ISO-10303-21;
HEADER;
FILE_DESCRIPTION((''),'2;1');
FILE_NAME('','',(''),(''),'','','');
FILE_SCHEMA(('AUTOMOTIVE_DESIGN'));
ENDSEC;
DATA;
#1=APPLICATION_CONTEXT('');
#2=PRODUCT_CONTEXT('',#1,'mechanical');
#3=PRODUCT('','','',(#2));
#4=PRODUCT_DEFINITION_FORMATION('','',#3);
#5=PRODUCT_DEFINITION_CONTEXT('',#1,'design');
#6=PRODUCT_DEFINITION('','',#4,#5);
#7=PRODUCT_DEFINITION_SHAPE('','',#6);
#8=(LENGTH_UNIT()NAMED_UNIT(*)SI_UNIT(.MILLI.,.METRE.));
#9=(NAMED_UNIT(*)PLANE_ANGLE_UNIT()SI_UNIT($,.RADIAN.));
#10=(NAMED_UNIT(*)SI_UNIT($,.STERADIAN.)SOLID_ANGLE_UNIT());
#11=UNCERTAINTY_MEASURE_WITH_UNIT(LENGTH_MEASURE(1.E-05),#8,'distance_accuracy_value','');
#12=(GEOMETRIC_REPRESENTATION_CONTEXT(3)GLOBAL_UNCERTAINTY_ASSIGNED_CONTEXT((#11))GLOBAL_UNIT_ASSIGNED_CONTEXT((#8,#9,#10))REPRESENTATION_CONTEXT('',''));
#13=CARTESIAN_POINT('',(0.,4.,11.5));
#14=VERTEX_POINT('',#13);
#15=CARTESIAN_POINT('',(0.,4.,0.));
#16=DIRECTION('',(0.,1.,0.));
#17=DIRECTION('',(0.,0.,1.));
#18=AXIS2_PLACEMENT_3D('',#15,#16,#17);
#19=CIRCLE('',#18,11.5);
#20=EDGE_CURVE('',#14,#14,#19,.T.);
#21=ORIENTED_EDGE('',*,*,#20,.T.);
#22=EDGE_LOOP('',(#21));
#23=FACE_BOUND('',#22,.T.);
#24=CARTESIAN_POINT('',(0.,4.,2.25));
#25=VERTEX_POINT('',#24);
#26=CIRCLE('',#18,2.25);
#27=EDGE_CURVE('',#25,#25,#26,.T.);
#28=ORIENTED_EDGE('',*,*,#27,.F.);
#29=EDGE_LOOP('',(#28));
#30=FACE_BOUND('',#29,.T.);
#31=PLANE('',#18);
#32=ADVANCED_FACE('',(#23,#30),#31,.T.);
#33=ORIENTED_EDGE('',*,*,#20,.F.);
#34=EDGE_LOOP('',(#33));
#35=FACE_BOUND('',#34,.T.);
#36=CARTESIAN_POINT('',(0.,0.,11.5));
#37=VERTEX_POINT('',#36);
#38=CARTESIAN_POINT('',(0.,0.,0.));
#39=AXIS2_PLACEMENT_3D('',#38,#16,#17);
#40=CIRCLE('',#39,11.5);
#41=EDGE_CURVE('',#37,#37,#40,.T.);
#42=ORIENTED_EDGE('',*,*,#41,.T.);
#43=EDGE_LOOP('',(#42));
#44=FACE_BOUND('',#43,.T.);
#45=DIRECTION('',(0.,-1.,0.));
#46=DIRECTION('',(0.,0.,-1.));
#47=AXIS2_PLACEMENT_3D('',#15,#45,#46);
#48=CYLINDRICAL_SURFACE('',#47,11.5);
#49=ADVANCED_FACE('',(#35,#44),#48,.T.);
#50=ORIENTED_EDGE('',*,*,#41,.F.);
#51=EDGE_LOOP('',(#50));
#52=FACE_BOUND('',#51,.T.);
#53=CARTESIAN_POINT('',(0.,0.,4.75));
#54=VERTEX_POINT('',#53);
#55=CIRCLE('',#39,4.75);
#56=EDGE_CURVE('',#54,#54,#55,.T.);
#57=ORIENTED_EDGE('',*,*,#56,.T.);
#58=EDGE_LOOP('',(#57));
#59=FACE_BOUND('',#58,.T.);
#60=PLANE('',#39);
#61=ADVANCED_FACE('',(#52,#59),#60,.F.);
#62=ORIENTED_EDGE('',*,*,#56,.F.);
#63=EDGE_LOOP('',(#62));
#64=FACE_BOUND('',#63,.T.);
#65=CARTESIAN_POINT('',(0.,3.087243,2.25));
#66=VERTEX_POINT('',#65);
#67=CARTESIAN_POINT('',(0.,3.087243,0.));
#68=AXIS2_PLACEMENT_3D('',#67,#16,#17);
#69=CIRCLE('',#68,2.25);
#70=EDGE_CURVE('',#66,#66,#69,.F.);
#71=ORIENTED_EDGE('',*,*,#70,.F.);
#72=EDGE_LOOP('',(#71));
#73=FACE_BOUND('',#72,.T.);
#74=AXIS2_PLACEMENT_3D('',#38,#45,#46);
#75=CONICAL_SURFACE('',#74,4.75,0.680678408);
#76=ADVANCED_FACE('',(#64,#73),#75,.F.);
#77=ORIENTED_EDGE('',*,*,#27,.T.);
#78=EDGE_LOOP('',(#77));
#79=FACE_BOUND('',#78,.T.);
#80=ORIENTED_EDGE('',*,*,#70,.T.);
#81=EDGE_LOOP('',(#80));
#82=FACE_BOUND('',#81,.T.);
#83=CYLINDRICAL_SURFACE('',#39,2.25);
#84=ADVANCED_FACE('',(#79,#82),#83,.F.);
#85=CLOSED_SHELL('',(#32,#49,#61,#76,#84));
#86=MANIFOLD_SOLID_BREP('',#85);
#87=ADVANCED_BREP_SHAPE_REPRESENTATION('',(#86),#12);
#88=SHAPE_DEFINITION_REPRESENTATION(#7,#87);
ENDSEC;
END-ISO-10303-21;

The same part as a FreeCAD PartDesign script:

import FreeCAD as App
import Part
import Sketcher

V = App.Vector


def edges_at(feature, points):
    """Names of the edges that pass closest to the given points."""
    edges = feature.Shape.Edges
    near = lambda p: min(range(len(edges)), key=lambda i: edges[i].distToShape(Part.Vertex(*p))[0])
    return sorted({f"Edge{near(p) + 1}" for p in points})

doc = App.newDocument("Part")
params = doc.addObject("Spreadsheet::Sheet", "Params")
for row, (alias, value) in enumerate([
    ("sketch1_diameter", "23 mm"),
    ("pad1_length", "4 mm"),
    ("sketch2_diameter", "4.5 mm"),
    ("chamfer_size", "2.5 mm"),
    ("chamfer_size2", "3.087243 mm"),
], start=1):
    params.set(f"A{row}", alias)
    params.set(f"B{row}", "=" + value)
    params.setAlias(f"B{row}", alias)

body = doc.addObject("PartDesign::Body", "Body")

# Sketch on XZ plane
sketch1 = body.newObject("Sketcher::SketchObject", "Sketch")
sketch1.AttachmentSupport = (doc.getObject("XZ_Plane"), [""])
sketch1.MapMode = "FlatFace"
sketch1.addGeometry(Part.Circle(V(0, 0, 0), V(0, 0, 1), 12), False)
sketch1.addConstraint([
    Sketcher.Constraint("Coincident", 0, 3, -1, 1),
    Sketcher.Constraint("Diameter", 0, 23.0),
])
sketch1.setExpression("Constraints[1]", "Params.sketch1_diameter")
pad1 = body.newObject("PartDesign::Pad", "Pad")
pad1.Profile = sketch1
pad1.setExpression("Length", "Params.pad1_length")
pad1.Reversed = True

# Sketch on XZ plane
sketch2 = body.newObject("Sketcher::SketchObject", "Sketch001")
sketch2.AttachmentSupport = (doc.getObject("XZ_Plane"), [""])
sketch2.MapMode = "FlatFace"
sketch2.AttachmentOffset = App.Placement(V(0, 0, -4), App.Rotation())
sketch2.addGeometry(Part.Circle(V(0, 0, 0), V(0, 0, 1), 2.2), False)
sketch2.addConstraint([
    Sketcher.Constraint("Coincident", 0, 3, -1, 1),
    Sketcher.Constraint("Diameter", 0, 4.5),
])
sketch2.setExpression("Constraints[1]", "Params.sketch2_diameter")
pocket1 = body.newObject("PartDesign::Pocket", "Pocket")
pocket1.Profile = sketch2
pocket1.Type = "ThroughAll"
pocket1.Reversed = True
doc.recompute()

chamfer = body.newObject("PartDesign::Chamfer", "Chamfer")
chamfer.Base = (pocket1, edges_at(pocket1, [(-2.25, 0, 0)]))
chamfer.ChamferType = "Two distances"
chamfer.setExpression("Size", "Params.chamfer_size")
chamfer.setExpression("Size2", "Params.chamfer_size2")

doc.recompute()
